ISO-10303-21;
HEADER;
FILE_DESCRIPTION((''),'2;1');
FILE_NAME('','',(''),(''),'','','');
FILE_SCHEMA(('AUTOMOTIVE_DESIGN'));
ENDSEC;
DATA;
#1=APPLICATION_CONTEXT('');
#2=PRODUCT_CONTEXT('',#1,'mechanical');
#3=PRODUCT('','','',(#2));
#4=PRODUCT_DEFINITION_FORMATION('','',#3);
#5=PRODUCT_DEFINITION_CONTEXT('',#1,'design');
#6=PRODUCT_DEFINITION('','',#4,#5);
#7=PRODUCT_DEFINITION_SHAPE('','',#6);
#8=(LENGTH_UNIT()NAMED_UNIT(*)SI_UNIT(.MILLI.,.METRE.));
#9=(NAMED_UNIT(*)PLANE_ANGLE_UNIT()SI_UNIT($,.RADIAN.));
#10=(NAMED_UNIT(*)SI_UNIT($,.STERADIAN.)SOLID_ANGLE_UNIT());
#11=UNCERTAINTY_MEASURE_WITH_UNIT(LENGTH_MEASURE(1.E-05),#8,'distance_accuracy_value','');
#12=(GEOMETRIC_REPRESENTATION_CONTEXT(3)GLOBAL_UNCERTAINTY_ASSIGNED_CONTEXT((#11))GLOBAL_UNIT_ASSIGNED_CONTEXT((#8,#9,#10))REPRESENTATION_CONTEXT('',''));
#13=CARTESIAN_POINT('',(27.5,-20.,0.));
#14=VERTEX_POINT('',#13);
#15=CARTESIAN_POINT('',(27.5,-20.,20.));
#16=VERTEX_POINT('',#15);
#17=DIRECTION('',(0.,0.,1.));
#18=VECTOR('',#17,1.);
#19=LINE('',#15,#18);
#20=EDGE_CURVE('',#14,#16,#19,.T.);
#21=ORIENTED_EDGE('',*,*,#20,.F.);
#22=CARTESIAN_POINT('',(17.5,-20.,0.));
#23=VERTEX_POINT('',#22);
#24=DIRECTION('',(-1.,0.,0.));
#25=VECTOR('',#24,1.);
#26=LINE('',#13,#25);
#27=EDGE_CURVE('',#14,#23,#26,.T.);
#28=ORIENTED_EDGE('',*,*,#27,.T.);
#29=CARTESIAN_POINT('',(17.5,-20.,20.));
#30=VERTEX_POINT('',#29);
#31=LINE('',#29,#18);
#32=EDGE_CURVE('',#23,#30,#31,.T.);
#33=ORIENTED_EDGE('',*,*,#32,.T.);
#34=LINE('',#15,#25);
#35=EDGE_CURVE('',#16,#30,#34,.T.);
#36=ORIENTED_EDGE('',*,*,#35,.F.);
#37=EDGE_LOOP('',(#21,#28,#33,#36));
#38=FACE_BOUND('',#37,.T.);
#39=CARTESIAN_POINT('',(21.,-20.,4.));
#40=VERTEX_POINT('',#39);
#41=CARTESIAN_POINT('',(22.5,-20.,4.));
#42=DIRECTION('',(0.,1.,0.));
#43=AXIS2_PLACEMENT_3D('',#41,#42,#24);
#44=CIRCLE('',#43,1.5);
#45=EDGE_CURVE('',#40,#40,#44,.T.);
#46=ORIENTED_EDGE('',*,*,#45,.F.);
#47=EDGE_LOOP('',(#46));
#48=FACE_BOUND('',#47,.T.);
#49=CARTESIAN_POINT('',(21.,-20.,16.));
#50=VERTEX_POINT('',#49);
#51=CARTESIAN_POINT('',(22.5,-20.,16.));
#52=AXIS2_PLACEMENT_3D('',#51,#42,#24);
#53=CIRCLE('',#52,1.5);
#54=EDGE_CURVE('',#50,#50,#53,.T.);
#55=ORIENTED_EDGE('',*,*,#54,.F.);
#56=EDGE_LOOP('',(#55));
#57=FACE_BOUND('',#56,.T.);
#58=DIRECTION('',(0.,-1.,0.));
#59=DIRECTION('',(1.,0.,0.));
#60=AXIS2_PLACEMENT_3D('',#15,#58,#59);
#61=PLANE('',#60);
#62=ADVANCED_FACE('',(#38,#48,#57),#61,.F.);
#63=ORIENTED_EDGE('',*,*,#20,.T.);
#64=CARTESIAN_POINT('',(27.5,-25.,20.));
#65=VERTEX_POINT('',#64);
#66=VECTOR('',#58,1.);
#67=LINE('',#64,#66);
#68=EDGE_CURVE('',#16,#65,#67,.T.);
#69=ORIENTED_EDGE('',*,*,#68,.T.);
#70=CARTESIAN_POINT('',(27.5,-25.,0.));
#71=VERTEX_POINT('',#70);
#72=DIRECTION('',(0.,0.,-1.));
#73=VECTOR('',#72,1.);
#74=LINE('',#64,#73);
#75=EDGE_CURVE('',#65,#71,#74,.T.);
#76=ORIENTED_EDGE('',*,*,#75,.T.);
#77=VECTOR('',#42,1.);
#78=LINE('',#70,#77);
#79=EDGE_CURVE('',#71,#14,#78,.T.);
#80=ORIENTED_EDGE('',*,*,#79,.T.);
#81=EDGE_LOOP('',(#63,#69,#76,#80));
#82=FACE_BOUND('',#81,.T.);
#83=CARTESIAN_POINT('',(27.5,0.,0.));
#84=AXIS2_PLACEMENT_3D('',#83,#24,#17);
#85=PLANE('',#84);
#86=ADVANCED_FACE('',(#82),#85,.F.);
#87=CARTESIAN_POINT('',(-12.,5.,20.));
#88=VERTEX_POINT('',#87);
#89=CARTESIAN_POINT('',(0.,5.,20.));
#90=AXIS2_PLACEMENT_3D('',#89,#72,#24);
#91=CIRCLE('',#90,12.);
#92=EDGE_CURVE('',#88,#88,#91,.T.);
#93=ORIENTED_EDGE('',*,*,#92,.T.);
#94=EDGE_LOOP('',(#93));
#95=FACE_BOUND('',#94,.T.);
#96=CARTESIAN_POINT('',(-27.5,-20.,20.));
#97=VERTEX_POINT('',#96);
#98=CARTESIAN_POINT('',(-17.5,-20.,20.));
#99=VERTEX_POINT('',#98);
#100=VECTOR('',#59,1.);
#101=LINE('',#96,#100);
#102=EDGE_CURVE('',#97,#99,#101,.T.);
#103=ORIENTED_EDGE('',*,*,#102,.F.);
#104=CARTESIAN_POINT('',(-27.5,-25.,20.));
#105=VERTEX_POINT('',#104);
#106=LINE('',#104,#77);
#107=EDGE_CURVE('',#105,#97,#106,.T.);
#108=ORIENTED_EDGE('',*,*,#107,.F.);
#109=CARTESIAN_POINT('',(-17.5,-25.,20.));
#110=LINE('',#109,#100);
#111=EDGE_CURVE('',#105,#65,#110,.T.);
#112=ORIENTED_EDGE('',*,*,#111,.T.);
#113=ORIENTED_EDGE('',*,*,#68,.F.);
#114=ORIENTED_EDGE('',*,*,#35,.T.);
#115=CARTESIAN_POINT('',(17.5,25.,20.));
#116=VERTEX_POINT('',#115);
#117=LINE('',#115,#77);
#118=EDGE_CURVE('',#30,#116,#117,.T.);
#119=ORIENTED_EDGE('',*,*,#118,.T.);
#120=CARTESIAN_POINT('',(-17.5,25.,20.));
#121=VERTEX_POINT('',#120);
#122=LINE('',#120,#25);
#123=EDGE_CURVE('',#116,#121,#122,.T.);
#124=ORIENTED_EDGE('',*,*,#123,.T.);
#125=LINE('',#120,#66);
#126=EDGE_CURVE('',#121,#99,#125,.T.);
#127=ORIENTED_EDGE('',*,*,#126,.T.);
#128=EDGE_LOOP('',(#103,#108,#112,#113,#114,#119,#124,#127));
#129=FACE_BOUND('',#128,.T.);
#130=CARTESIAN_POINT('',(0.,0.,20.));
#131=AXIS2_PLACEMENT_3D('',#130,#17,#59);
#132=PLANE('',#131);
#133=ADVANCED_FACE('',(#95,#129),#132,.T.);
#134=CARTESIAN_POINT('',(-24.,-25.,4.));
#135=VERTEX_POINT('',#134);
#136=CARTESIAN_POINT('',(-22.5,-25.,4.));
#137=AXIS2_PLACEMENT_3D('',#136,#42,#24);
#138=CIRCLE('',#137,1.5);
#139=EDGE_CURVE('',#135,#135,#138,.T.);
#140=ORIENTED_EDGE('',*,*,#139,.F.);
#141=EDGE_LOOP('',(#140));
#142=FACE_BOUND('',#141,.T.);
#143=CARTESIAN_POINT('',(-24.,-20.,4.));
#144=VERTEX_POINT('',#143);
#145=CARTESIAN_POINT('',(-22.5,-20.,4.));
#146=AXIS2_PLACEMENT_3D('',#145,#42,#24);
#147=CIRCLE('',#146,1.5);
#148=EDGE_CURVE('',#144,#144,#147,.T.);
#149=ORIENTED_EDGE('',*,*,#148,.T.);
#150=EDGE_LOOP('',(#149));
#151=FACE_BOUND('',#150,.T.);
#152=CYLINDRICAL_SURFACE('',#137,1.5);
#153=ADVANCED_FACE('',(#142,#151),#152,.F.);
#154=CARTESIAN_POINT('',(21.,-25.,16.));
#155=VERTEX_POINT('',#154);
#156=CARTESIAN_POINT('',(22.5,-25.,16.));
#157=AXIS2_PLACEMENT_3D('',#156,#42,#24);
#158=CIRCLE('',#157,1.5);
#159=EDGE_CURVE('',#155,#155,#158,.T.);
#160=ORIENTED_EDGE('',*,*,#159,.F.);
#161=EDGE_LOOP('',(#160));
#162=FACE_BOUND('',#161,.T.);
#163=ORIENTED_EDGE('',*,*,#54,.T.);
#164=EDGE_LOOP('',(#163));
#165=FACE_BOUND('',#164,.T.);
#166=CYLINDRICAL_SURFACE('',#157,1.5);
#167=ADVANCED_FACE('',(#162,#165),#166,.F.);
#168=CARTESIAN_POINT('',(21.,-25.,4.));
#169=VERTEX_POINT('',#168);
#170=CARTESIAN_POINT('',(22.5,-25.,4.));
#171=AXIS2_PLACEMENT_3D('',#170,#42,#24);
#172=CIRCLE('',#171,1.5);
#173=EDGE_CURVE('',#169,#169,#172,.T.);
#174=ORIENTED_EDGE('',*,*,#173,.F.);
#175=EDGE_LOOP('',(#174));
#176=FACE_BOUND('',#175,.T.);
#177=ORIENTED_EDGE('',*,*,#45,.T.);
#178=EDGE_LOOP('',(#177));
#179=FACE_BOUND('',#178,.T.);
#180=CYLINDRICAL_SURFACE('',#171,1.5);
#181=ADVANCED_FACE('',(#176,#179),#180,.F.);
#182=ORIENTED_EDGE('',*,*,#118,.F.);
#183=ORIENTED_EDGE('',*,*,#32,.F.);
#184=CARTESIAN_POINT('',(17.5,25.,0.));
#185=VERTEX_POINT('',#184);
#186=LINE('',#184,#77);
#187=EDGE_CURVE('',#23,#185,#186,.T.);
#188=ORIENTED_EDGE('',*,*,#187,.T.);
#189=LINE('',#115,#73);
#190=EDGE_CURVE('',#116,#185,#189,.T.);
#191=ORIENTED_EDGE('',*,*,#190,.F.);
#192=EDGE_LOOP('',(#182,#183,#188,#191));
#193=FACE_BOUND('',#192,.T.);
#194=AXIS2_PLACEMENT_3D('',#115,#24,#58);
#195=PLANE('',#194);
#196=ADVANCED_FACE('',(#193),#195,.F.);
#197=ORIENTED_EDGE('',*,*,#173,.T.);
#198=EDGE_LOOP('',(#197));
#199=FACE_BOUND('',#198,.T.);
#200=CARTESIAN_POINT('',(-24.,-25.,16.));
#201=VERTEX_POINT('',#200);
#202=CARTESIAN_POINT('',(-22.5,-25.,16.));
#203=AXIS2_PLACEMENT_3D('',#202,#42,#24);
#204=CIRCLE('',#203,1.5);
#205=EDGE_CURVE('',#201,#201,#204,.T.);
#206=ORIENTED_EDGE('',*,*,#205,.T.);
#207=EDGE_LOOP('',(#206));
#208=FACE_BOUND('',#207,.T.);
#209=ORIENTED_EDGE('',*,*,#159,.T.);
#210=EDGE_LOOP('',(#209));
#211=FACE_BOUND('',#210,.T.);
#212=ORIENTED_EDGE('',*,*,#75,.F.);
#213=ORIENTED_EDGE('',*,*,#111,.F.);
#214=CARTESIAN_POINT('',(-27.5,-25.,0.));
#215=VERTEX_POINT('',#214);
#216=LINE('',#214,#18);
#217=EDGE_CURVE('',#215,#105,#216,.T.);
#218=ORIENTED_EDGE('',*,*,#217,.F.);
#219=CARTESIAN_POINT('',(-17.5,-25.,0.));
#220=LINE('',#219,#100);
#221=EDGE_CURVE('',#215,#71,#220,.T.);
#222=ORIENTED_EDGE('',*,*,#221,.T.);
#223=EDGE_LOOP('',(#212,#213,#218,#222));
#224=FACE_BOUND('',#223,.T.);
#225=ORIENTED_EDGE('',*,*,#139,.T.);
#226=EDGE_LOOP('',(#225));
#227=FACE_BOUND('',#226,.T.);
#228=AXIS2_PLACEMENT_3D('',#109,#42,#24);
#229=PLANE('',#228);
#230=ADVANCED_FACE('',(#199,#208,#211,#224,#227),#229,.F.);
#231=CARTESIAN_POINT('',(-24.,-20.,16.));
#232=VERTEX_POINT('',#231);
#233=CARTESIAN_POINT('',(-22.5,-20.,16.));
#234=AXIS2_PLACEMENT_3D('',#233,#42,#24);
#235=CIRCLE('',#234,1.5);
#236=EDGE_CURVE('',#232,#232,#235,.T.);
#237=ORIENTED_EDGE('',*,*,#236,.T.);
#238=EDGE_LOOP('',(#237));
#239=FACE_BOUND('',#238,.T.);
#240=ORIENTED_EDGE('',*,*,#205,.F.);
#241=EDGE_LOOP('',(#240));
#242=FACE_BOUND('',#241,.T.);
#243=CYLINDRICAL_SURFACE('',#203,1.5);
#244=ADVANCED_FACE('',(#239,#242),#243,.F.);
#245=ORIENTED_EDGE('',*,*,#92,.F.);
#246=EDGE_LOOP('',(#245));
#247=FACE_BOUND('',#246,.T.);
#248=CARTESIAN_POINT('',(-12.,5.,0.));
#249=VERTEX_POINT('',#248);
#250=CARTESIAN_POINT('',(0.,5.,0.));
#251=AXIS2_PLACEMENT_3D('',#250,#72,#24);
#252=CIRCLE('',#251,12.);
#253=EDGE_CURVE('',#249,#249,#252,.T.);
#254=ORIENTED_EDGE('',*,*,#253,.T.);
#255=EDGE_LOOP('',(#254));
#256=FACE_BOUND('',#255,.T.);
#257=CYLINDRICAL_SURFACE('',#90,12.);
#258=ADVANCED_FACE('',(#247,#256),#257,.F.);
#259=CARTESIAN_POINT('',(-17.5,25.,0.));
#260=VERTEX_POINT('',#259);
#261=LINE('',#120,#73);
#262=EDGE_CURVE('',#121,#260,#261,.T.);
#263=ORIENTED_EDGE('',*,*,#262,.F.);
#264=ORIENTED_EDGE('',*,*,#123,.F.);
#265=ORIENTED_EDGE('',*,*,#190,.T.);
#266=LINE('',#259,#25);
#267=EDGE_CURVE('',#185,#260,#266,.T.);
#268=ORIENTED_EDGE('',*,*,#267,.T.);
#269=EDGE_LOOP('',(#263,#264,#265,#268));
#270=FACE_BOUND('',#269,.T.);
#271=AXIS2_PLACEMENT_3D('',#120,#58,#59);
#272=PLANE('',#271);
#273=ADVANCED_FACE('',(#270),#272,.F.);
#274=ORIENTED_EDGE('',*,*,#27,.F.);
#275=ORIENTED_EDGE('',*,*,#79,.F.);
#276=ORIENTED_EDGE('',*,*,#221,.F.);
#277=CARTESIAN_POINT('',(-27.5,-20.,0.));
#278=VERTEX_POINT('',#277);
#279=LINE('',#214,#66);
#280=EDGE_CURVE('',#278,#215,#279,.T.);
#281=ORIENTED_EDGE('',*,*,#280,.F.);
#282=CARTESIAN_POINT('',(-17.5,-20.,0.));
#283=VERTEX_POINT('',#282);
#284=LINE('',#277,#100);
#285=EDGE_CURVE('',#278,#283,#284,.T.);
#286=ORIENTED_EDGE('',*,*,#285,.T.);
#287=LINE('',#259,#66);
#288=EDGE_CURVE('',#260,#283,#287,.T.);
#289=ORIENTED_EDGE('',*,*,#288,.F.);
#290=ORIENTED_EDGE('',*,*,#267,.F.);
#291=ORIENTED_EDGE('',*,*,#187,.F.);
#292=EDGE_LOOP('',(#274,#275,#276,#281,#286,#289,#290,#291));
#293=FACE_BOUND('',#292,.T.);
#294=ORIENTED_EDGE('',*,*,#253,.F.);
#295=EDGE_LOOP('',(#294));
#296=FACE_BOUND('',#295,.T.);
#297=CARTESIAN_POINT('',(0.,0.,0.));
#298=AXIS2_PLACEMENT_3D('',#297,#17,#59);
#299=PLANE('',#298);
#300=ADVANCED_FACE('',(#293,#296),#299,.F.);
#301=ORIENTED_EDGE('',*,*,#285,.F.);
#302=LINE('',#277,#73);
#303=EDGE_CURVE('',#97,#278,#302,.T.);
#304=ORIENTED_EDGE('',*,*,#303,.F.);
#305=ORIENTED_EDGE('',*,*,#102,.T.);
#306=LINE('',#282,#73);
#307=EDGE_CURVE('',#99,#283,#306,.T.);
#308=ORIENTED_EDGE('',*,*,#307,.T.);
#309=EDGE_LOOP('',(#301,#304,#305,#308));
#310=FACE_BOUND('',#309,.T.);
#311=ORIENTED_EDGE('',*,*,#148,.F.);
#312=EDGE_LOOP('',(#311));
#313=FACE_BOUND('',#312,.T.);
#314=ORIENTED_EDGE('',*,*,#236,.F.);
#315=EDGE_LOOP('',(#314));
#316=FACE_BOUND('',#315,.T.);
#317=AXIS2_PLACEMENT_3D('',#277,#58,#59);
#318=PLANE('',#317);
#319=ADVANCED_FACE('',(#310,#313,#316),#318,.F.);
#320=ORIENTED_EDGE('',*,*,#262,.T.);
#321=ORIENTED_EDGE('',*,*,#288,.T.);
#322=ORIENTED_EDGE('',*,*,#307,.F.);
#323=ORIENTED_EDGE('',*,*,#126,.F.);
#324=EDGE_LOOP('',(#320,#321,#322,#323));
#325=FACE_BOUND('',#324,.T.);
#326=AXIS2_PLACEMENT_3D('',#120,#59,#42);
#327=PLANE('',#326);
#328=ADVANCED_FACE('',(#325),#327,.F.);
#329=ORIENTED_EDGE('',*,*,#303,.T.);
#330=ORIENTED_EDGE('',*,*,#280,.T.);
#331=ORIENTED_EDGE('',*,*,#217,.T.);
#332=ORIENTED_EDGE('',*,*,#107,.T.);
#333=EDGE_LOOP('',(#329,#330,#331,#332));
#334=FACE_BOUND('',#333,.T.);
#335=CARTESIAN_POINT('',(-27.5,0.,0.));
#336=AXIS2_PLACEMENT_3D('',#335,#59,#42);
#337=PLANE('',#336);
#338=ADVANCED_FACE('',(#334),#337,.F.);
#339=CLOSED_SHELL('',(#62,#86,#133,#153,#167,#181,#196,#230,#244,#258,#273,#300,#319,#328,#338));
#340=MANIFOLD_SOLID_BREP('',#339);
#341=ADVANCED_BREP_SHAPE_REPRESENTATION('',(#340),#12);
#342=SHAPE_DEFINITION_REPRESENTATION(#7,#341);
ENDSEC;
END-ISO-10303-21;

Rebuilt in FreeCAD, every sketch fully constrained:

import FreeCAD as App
import Part
import Sketcher
Q = App.Units.Quantity

doc = App.newDocument("Part")
body = doc.addObject("PartDesign::Body", "Body")

# Sketch on XY plane
sketch1 = doc.addObject("Sketcher::SketchObject", "Sketch")
body.addObject(sketch1)
sketch1.AttachmentSupport = (doc.XY_Plane, [""])
sketch1.MapMode = "FlatFace"
sketch1.addGeometry([
    Part.LineSegment(App.Vector(-18, 25, 0), App.Vector(-18, -25, 0)),
    Part.LineSegment(App.Vector(-18, -25, 0), App.Vector(18, -25, 0)),
    Part.LineSegment(App.Vector(18, -25, 0), App.Vector(18, 25, 0)),
    Part.LineSegment(App.Vector(18, 25, 0), App.Vector(-18, 25, 0)),
], False)
sketch1.addConstraint([
    Sketcher.Constraint("Coincident", 0, 2, 1, 1),
    Sketcher.Constraint("Coincident", 1, 2, 2, 1),
    Sketcher.Constraint("Coincident", 2, 2, 3, 1),
    Sketcher.Constraint("Coincident", 3, 2, 0, 1),
    Sketcher.Constraint("Vertical", 0),
    Sketcher.Constraint("Horizontal", 1),
    Sketcher.Constraint("Vertical", 2),
    Sketcher.Constraint("Horizontal", 3),
    Sketcher.Constraint("Symmetric", 0, 2, 2, 2, -1, 1),
    Sketcher.Constraint("DistanceX", 1, 1, 1, 2, Q("35 mm")),
    Sketcher.Constraint("DistanceY", 0, 2, 0, 1, Q("50 mm")),
])
pad1 = doc.addObject("PartDesign::Pad", "Pad")
body.addObject(pad1)
pad1.Profile = sketch1
pad1.Length = 20

# Sketch on YZ plane
sketch2 = doc.addObject("Sketcher::SketchObject", "Sketch001")
body.addObject(sketch2)
sketch2.AttachmentSupport = (doc.YZ_Plane, [""])
sketch2.MapMode = "FlatFace"
sketch2.AttachmentOffset = App.Placement(App.Vector(0, 0, 17.5), App.Rotation())
sketch2.addGeometry([
    Part.LineSegment(App.Vector(-20, 20, 0), App.Vector(-25, 20, 0)),
    Part.LineSegment(App.Vector(-25, 20, 0), App.Vector(-25, 0, 0)),
    Part.LineSegment(App.Vector(-25, 0, 0), App.Vector(-20, 0, 0)),
    Part.LineSegment(App.Vector(-20, 0, 0), App.Vector(-20, 20, 0)),
], False)
sketch2.addConstraint([
    Sketcher.Constraint("Coincident", 0, 2, 1, 1),
    Sketcher.Constraint("Coincident", 1, 2, 2, 1),
    Sketcher.Constraint("Coincident", 2, 2, 3, 1),
    Sketcher.Constraint("Coincident", 3, 2, 0, 1),
    Sketcher.Constraint("Horizontal", 0),
    Sketcher.Constraint("Vertical", 1),
    Sketcher.Constraint("Horizontal", 2),
    Sketcher.Constraint("Vertical", 3),
    Sketcher.Constraint("PointOnObject", 1, 2, -1),
    Sketcher.Constraint("DistanceX", 0, 2, 0, 1, Q("5 mm")),
    Sketcher.Constraint("DistanceY", 1, 2, 1, 1, Q("20 mm")),
    Sketcher.Constraint("DistanceX", 0, 2, -1, 1, Q("25 mm")),
])
pad2 = doc.addObject("PartDesign::Pad", "Pad001")
body.addObject(pad2)
pad2.Profile = sketch2
pad2.Length = 10

# Sketch on YZ plane
sketch3 = doc.addObject("Sketcher::SketchObject", "Sketch002")
body.addObject(sketch3)
sketch3.AttachmentSupport = (doc.YZ_Plane, [""])
sketch3.MapMode = "FlatFace"
sketch3.AttachmentOffset = App.Placement(App.Vector(0, 0, -17.5), App.Rotation())
sketch3.addGeometry([
    Part.LineSegment(App.Vector(-20, 0, 0), App.Vector(-25, 0, 0)),
    Part.LineSegment(App.Vector(-25, 0, 0), App.Vector(-25, 20, 0)),
    Part.LineSegment(App.Vector(-25, 20, 0), App.Vector(-20, 20, 0)),
    Part.LineSegment(App.Vector(-20, 20, 0), App.Vector(-20, 0, 0)),
], False)
sketch3.addConstraint([
    Sketcher.Constraint("Coincident", 0, 2, 1, 1),
    Sketcher.Constraint("Coincident", 1, 2, 2, 1),
    Sketcher.Constraint("Coincident", 2, 2, 3, 1),
    Sketcher.Constraint("Coincident", 3, 2, 0, 1),
    Sketcher.Constraint("Horizontal", 0),
    Sketcher.Constraint("Vertical", 1),
    Sketcher.Constraint("Horizontal", 2),
    Sketcher.Constraint("Vertical", 3),
    Sketcher.Constraint("PointOnObject", 0, 2, -1),
    Sketcher.Constraint("DistanceX", 0, 2, 0, 1, Q("5 mm")),
    Sketcher.Constraint("DistanceY", 1, 1, 1, 2, Q("20 mm")),
    Sketcher.Constraint("DistanceX", 0, 2, -1, 1, Q("25 mm")),
])
pad3 = doc.addObject("PartDesign::Pad", "Pad002")
body.addObject(pad3)
pad3.Profile = sketch3
pad3.Length = 10
pad3.Reversed = True

# Sketch on XY plane
sketch4 = doc.addObject("Sketcher::SketchObject", "Sketch003")
body.addObject(sketch4)
sketch4.AttachmentSupport = (doc.XY_Plane, [""])
sketch4.MapMode = "FlatFace"
sketch4.addGeometry(Part.Circle(App.Vector(0, 5, 0), App.Vector(0, 0, 1), 12), False)
sketch4.addConstraint([
    Sketcher.Constraint("PointOnObject", 0, 3, -2),
    Sketcher.Constraint("Diameter", 0, Q("24 mm")),
    Sketcher.Constraint("DistanceY", -1, 1, 0, 3, Q("5 mm")),
])
pocket1 = doc.addObject("PartDesign::Pocket", "Pocket")
body.addObject(pocket1)
pocket1.Profile = sketch4
pocket1.Length = 20
pocket1.Reversed = True

# Sketch on XZ plane
sketch5 = doc.addObject("Sketcher::SketchObject", "Sketch004")
body.addObject(sketch5)
sketch5.AttachmentSupport = (doc.XZ_Plane, [""])
sketch5.MapMode = "FlatFace"
sketch5.AttachmentOffset = App.Placement(App.Vector(0, 0, 20), App.Rotation())
sketch5.addGeometry(Part.Circle(App.Vector(-22.5, 4, 0), App.Vector(0, 0, 1), 1.5), False)
sketch5.addConstraint([
    Sketcher.Constraint("Diameter", 0, Q("3 mm")),
    Sketcher.Constraint("DistanceY", -1, 1, 0, 3, Q("4 mm")),
    Sketcher.Constraint("DistanceX", 0, 3, -1, 1, Q("22.5 mm")),
])
pocket2 = doc.addObject("PartDesign::Pocket", "Pocket001")
body.addObject(pocket2)
pocket2.Profile = sketch5
pocket2.Length = 5
pocket2.Reversed = True

# Sketch on XZ plane
sketch6 = doc.addObject("Sketcher::SketchObject", "Sketch005")
body.addObject(sketch6)
sketch6.AttachmentSupport = (doc.XZ_Plane, [""])
sketch6.MapMode = "FlatFace"
sketch6.AttachmentOffset = App.Placement(App.Vector(0, 0, 20), App.Rotation())
sketch6.addGeometry(Part.Circle(App.Vector(-22.5, 16, 0), App.Vector(0, 0, 1), 1.5), False)
sketch6.addConstraint([
    Sketcher.Constraint("Diameter", 0, Q("3 mm")),
    Sketcher.Constraint("DistanceY", -1, 1, 0, 3, Q("16 mm")),
    Sketcher.Constraint("DistanceX", 0, 3, -1, 1, Q("22.5 mm")),
])
pocket3 = doc.addObject("PartDesign::Pocket", "Pocket002")
body.addObject(pocket3)
pocket3.Profile = sketch6
pocket3.Length = 5
pocket3.Reversed = True

# Sketch on XZ plane
sketch7 = doc.addObject("Sketcher::SketchObject", "Sketch006")
body.addObject(sketch7)
sketch7.AttachmentSupport = (doc.XZ_Plane, [""])
sketch7.MapMode = "FlatFace"
sketch7.AttachmentOffset = App.Placement(App.Vector(0, 0, 20), App.Rotation())
sketch7.addGeometry(Part.Circle(App.Vector(22.5, 4, 0), App.Vector(0, 0, 1), 1.5), False)
sketch7.addConstraint([
    Sketcher.Constraint("Diameter", 0, Q("3 mm")),
    Sketcher.Constraint("DistanceY", -1, 1, 0, 3, Q("4 mm")),
    Sketcher.Constraint("DistanceX", -1, 1, 0, 3, Q("22.5 mm")),
])
pocket4 = doc.addObject("PartDesign::Pocket", "Pocket003")
body.addObject(pocket4)
pocket4.Profile = sketch7
pocket4.Length = 5
pocket4.Reversed = True

# Sketch on XZ plane
sketch8 = doc.addObject("Sketcher::SketchObject", "Sketch007")
body.addObject(sketch8)
sketch8.AttachmentSupport = (doc.XZ_Plane, [""])
sketch8.MapMode = "FlatFace"
sketch8.AttachmentOffset = App.Placement(App.Vector(0, 0, 20), App.Rotation())
sketch8.addGeometry(Part.Circle(App.Vector(22.5, 16, 0), App.Vector(0, 0, 1), 1.5), False)
sketch8.addConstraint([
    Sketcher.Constraint("Diameter", 0, Q("3 mm")),
    Sketcher.Constraint("DistanceY", -1, 1, 0, 3, Q("16 mm")),
    Sketcher.Constraint("DistanceX", -1, 1, 0, 3, Q("22.5 mm")),
])
pocket5 = doc.addObject("PartDesign::Pocket", "Pocket004")
body.addObject(pocket5)
pocket5.Profile = sketch8
pocket5.Length = 5
pocket5.Reversed = True

doc.recompute()
